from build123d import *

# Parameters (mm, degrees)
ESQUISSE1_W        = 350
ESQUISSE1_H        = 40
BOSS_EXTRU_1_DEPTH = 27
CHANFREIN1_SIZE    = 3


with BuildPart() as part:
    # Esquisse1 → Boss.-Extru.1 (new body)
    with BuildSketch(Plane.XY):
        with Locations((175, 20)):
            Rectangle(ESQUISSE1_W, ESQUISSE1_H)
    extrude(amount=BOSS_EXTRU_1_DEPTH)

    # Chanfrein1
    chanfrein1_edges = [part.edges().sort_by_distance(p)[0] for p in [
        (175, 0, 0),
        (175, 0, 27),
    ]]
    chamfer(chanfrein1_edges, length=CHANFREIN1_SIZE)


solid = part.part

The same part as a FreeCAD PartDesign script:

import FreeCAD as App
import Part
import Sketcher


def edges_at(feature, points):
    """Names of the edges that pass closest to the given points."""
    edges = feature.Shape.Edges
    near = lambda p: min(range(len(edges)), key=lambda i: edges[i].distToShape(Part.Vertex(*p))[0])
    return sorted({f"Edge{near(p) + 1}" for p in points})

doc = App.newDocument("Part")
body = doc.addObject("PartDesign::Body", "Body")

# Sketch on XY plane
sketch1 = body.newObject("Sketcher::SketchObject", "Sketch")
sketch1.AttachmentSupport = (doc.getObject("XY_Plane"), [""])
sketch1.MapMode = "FlatFace"
sketch1.addGeometry([
    Part.LineSegment(App.Vector(0, 40, 0), App.Vector(0, 0, 0)),
    Part.LineSegment(App.Vector(0, 0, 0), App.Vector(350, 0, 0)),
    Part.LineSegment(App.Vector(350, 0, 0), App.Vector(350, 40, 0)),
    Part.LineSegment(App.Vector(350, 40, 0), App.Vector(0, 40, 0)),
], False)
sketch1.addConstraint([
    Sketcher.Constraint("Coincident", 0, 2, 1, 1),
    Sketcher.Constraint("Coincident", 1, 2, 2, 1),
    Sketcher.Constraint("Coincident", 2, 2, 3, 1),
    Sketcher.Constraint("Coincident", 3, 2, 0, 1),
    Sketcher.Constraint("Vertical", 0),
    Sketcher.Constraint("Horizontal", 1),
    Sketcher.Constraint("Vertical", 2),
    Sketcher.Constraint("Horizontal", 3),
    Sketcher.Constraint("Coincident", 0, 2, -1, 1),
    Sketcher.Constraint("DistanceX", 1, 1, 1, 2, 350.0),
    Sketcher.Constraint("DistanceY", 0, 2, 0, 1, 40.0),
])
pad1 = body.newObject("PartDesign::Pad", "Pad")
pad1.Profile = sketch1
pad1.Length = 27
doc.recompute()

chamfer = body.newObject("PartDesign::Chamfer", "Chamfer")
chamfer.Base = (pad1, edges_at(pad1, [(175, 0, 0), (175, 0, 27)]))
chamfer.Size = 3

doc.recompute()
